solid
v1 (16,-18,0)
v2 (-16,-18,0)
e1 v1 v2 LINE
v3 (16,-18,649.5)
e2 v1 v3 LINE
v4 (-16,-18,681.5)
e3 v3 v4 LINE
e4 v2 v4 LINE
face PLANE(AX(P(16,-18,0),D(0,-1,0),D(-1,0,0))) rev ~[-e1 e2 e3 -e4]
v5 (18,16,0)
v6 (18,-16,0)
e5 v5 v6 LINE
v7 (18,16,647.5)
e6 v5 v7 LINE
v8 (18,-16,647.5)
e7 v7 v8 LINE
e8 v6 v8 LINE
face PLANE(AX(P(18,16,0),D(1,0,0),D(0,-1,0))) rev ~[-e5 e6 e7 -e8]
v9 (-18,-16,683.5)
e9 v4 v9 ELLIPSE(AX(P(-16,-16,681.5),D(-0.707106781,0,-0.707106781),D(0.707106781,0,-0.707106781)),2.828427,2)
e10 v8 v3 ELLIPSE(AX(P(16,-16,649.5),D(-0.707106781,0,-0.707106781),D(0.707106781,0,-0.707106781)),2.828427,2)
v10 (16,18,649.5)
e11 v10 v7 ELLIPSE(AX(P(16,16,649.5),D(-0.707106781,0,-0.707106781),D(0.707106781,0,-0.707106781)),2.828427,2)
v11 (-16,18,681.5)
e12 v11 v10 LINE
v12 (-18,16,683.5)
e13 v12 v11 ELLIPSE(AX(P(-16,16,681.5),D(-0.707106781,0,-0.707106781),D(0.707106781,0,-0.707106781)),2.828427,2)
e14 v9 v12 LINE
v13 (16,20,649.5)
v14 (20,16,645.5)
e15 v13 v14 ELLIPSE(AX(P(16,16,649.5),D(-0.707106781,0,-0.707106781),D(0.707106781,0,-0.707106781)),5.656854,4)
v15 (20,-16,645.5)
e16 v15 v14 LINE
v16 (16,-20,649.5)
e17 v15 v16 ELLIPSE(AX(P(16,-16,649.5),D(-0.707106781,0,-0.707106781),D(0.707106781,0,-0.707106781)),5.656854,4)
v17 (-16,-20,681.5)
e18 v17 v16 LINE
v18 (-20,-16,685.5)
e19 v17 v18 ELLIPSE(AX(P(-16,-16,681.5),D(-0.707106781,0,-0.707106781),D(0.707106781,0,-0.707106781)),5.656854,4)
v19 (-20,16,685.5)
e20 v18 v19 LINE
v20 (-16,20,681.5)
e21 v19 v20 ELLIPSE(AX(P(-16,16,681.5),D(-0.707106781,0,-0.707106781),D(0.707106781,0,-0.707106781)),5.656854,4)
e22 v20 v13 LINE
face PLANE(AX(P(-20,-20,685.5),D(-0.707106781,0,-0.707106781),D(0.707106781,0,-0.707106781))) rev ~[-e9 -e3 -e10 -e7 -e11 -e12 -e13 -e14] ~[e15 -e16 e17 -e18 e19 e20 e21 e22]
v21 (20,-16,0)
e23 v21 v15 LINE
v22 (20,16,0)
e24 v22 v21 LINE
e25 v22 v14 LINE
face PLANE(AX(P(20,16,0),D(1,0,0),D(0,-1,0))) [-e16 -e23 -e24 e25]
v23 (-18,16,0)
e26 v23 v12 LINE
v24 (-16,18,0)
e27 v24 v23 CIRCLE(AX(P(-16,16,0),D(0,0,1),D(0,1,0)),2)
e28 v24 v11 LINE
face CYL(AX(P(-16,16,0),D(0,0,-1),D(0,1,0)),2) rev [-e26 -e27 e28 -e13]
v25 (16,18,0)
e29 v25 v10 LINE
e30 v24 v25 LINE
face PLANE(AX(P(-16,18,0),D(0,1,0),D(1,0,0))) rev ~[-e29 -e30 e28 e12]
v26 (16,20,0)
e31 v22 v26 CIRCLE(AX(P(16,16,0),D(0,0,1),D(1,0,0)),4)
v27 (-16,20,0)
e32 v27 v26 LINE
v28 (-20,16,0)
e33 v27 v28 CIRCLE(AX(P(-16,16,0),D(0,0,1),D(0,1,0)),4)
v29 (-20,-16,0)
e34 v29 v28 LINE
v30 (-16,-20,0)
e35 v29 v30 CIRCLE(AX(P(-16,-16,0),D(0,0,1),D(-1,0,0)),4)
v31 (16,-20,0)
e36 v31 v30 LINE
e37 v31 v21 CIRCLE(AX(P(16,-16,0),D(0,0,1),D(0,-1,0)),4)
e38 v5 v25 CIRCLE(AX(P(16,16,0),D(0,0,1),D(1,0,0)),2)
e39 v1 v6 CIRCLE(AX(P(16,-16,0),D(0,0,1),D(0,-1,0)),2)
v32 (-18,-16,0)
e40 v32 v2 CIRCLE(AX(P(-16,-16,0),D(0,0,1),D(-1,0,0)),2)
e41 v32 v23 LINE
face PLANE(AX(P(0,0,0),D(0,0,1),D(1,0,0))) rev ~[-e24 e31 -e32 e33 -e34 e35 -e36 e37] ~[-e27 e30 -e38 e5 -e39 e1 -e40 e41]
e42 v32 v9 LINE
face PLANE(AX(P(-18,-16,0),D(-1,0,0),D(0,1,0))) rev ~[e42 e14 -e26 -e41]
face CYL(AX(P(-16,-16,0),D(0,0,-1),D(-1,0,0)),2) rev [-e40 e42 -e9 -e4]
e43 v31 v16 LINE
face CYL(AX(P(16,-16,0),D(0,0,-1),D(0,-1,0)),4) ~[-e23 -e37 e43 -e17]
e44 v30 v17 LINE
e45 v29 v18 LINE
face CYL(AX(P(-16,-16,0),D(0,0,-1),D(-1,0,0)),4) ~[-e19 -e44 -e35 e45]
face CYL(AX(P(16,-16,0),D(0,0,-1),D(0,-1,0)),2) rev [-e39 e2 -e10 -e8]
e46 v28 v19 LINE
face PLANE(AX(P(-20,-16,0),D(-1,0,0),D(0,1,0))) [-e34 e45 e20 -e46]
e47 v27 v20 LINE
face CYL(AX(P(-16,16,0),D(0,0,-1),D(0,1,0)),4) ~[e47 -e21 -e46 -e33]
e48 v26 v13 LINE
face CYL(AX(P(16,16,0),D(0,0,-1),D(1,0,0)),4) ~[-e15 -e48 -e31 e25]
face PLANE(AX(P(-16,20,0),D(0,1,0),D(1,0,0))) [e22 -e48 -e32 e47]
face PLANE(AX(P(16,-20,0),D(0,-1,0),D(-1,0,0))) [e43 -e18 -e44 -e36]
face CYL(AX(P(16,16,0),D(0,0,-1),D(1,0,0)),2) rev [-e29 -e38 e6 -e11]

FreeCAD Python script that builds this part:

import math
import FreeCAD as App
import Part
import Sketcher
from FreeCAD import Vector
Q = App.Units.Quantity


def add_polygon(sketch, points):
    """Adds a closed chain of lines whose ends are joined by coincident constraints."""
    first, n = sketch.GeometryCount, len(points)
    for a, b in zip(points, points[1:] + points[:1]):
        sketch.addGeometry(Part.LineSegment(App.Vector(*a, 0), App.Vector(*b, 0)), False)
    for i in range(n):
        sketch.addConstraint(Sketcher.Constraint("Coincident", first + i, 2, first + (i + 1) % n, 1))

doc = App.newDocument("Part")
body = doc.addObject("PartDesign::Body", "Body")

# Sketch on XY plane
sketch1 = body.newObject("Sketcher::SketchObject", "Sketch")
sketch1.AttachmentSupport = (doc.getObject("XY_Plane"), [""])
sketch1.MapMode = "FlatFace"
sketch1.addGeometry(Part.LineSegment(Vector(-20, 16, 0), Vector(-20, -16, 0)), False)
sketch1.addGeometry(Part.ArcOfCircle(Part.Circle(Vector(-16, -16, 0), Vector(0, 0, 1), 4), math.radians(180), math.radians(270)), False)
sketch1.addGeometry(Part.LineSegment(Vector(-16, -20, 0), Vector(16, -20, 0)), False)
sketch1.addGeometry(Part.ArcOfCircle(Part.Circle(Vector(16, -16, 0), Vector(0, 0, 1), 4), math.radians(-90), math.radians(0)), False)
sketch1.addGeometry(Part.LineSegment(Vector(20, -16, 0), Vector(20, 16, 0)), False)
sketch1.addGeometry(Part.ArcOfCircle(Part.Circle(Vector(16, 16, 0), Vector(0, 0, 1), 4), math.radians(0), math.radians(90)), False)
sketch1.addGeometry(Part.LineSegment(Vector(16, 20, 0), Vector(-16, 20, 0)), False)
sketch1.addGeometry(Part.ArcOfCircle(Part.Circle(Vector(-16, 16, 0), Vector(0, 0, 1), 4), math.radians(90), math.radians(180)), False)
sketch1.addGeometry(Part.ArcOfCircle(Part.Circle(Vector(-16, 16, 0), Vector(0, 0, 1), 2), math.radians(90), math.radians(180)), False)
sketch1.addGeometry(Part.LineSegment(Vector(-16, 18, 0), Vector(16, 18, 0)), False)
sketch1.addGeometry(Part.ArcOfCircle(Part.Circle(Vector(16, 16, 0), Vector(0, 0, 1), 2), math.radians(0), math.radians(90)), False)
sketch1.addGeometry(Part.LineSegment(Vector(18, 16, 0), Vector(18, -16, 0)), False)
sketch1.addGeometry(Part.ArcOfCircle(Part.Circle(Vector(16, -16, 0), Vector(0, 0, 1), 2), math.radians(-90), math.radians(0)), False)
sketch1.addGeometry(Part.LineSegment(Vector(16, -18, 0), Vector(-16, -18, 0)), False)
sketch1.addGeometry(Part.ArcOfCircle(Part.Circle(Vector(-16, -16, 0), Vector(0, 0, 1), 2), math.radians(180), math.radians(270)), False)
sketch1.addGeometry(Part.LineSegment(Vector(-18, -16, 0), Vector(-18, 16, 0)), False)
sketch1.addConstraint(Sketcher.Constraint("Tangent", 0, 2, 1, 1))
sketch1.addConstraint(Sketcher.Constraint("Tangent", 1, 2, 2, 1))
sketch1.addConstraint(Sketcher.Constraint("Tangent", 2, 2, 3, 1))
sketch1.addConstraint(Sketcher.Constraint("Tangent", 3, 2, 4, 1))
sketch1.addConstraint(Sketcher.Constraint("Tangent", 4, 2, 5, 1))
sketch1.addConstraint(Sketcher.Constraint("Tangent", 5, 2, 6, 1))
sketch1.addConstraint(Sketcher.Constraint("Tangent", 6, 2, 7, 1))
sketch1.addConstraint(Sketcher.Constraint("Tangent", 7, 2, 0, 1))
sketch1.addConstraint(Sketcher.Constraint("Tangent", 8, 1, 9, 1))
sketch1.addConstraint(Sketcher.Constraint("Tangent", 9, 2, 10, 2))
sketch1.addConstraint(Sketcher.Constraint("Tangent", 10, 1, 11, 1))
sketch1.addConstraint(Sketcher.Constraint("Tangent", 11, 2, 12, 2))
sketch1.addConstraint(Sketcher.Constraint("Tangent", 12, 1, 13, 1))
sketch1.addConstraint(Sketcher.Constraint("Tangent", 13, 2, 14, 2))
sketch1.addConstraint(Sketcher.Constraint("Tangent", 14, 1, 15, 1))
sketch1.addConstraint(Sketcher.Constraint("Tangent", 15, 2, 8, 2))
sketch1.addConstraint(Sketcher.Constraint("Vertical", 0))
sketch1.addConstraint(Sketcher.Constraint("Horizontal", 2))
sketch1.addConstraint(Sketcher.Constraint("Vertical", 4))
sketch1.addConstraint(Sketcher.Constraint("Horizontal", 6))
sketch1.addConstraint(Sketcher.Constraint("Horizontal", 9))
sketch1.addConstraint(Sketcher.Constraint("Vertical", 11))
sketch1.addConstraint(Sketcher.Constraint("Horizontal", 13))
sketch1.addConstraint(Sketcher.Constraint("Vertical", 15))
sketch1.addConstraint(Sketcher.Constraint("Coincident", 8, 3, 7, 3))
sketch1.addConstraint(Sketcher.Constraint("Coincident", 10, 3, 5, 3))
sketch1.addConstraint(Sketcher.Constraint("Coincident", 12, 3, 3, 3))
sketch1.addConstraint(Sketcher.Constraint("Equal", 1, 3))
sketch1.addConstraint(Sketcher.Constraint("Equal", 3, 5))
sketch1.addConstraint(Sketcher.Constraint("Equal", 5, 7))
sketch1.addConstraint(Sketcher.Constraint("Equal", 12, 14))
sketch1.addConstraint(Sketcher.Constraint("Symmetric", 1, 3, 5, 3, -1, 1))
sketch1.addConstraint(Sketcher.Constraint("Equal", 13, 0))
sketch1.addConstraint(Sketcher.Constraint("Radius", 1, 4.0))
sketch1.addConstraint(Sketcher.Constraint("Radius", 8, 2.0))
sketch1.addConstraint(Sketcher.Constraint("DistanceX", 0, 2, -1, 1, 20.0))
pad1 = body.newObject("PartDesign::Pad", "Pad")
pad1.Profile = sketch1
pad1.Length = 685.5

# Sketch on XZ plane
sketch2 = body.newObject("Sketcher::SketchObject", "Sketch001")
sketch2.AttachmentSupport = (doc.getObject("XZ_Plane"), [""])
sketch2.MapMode = "FlatFace"
sketch2.AttachmentOffset = App.Placement(Vector(0, 0, 20), App.Rotation())
add_polygon(sketch2, [(24, 698), (-20, 686), (24, 641)])  # lines 0-2
sketch2.addConstraint(Sketcher.Constraint("Vertical", 2))
sketch2.addConstraint(Sketcher.Constraint("Angle", 1, Q("-45 deg")))
sketch2.addConstraint(Sketcher.Constraint("DistanceX", 0, 2, -1, 1, 20.0))
sketch2.addConstraint(Sketcher.Constraint("DistanceY", -1, 1, 0, 2, 685.5))
sketch2.addConstraint(Sketcher.Constraint("Distance", 0, 46.094))
sketch2.addConstraint(Sketcher.Constraint("DistanceY", 2, 1, 2, 2, 56.7682))
pocket1 = body.newObject("PartDesign::Pocket", "Pocket")
pocket1.Profile = sketch2
pocket1.Length = 40

doc.recompute()
